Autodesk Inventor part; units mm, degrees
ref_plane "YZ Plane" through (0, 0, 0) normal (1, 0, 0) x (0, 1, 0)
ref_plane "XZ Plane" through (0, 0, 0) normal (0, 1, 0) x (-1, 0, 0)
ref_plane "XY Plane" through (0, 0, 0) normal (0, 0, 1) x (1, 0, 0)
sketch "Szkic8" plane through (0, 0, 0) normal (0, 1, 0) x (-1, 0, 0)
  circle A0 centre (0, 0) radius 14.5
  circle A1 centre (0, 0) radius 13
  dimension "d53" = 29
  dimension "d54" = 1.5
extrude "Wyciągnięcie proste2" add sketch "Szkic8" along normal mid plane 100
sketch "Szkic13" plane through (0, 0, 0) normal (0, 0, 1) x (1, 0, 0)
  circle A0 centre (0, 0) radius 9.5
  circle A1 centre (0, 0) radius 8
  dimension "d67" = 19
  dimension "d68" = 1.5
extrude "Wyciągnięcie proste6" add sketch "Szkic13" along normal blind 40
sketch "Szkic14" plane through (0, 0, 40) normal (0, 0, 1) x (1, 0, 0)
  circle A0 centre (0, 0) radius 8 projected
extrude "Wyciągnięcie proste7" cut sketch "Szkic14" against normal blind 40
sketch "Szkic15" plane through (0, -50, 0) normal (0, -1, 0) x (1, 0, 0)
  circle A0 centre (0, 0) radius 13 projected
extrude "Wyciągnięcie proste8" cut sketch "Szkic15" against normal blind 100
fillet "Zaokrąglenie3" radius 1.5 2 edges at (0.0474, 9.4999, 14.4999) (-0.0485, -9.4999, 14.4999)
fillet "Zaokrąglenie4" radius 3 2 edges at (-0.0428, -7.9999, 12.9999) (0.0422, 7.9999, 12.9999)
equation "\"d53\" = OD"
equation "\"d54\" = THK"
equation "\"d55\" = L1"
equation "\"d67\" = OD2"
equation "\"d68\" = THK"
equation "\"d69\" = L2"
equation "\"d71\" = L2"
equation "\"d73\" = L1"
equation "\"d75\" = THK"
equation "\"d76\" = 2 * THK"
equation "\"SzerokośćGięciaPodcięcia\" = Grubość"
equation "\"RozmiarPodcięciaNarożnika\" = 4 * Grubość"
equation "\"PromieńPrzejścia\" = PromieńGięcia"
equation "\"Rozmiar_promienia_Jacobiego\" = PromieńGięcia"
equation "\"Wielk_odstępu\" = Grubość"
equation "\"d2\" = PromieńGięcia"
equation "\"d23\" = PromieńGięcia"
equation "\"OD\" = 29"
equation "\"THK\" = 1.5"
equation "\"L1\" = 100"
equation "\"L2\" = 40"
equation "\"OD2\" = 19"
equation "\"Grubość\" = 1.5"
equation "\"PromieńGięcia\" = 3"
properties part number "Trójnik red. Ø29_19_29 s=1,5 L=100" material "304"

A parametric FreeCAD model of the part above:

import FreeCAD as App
import Part
import Sketcher


def edges_at(feature, points):
    """Names of the edges that pass closest to the given points."""
    edges = feature.Shape.Edges
    near = lambda p: min(range(len(edges)), key=lambda i: edges[i].distToShape(Part.Vertex(*p))[0])
    return sorted({f"Edge{near(p) + 1}" for p in points})

doc = App.newDocument("Part")
body = doc.addObject("PartDesign::Body", "Body")

sketch1 = body.newObject("Sketcher::SketchObject", "Sketch")
sketch1.AttachmentSupport = (doc.getObject("XZ_Plane"), [""])
sketch1.MapMode = "FlatFace"
sketch1.addGeometry(Part.Circle(App.Vector(0, 0, 0), App.Vector(0, 0, 1), 14), False)
sketch1.addGeometry(Part.Circle(App.Vector(0, 0, 0), App.Vector(0, 0, 1), 13), False)
sketch1.addConstraint(Sketcher.Constraint("Coincident", 0, 3, -1, 1))
sketch1.addConstraint(Sketcher.Constraint("Coincident", 1, 3, -1, 1))
sketch1.addConstraint(Sketcher.Constraint("Diameter", 0, 29.0))
sketch1.addConstraint(Sketcher.Constraint("Diameter", 1, 26.0))
pad1 = body.newObject("PartDesign::Pad", "Pad")
pad1.Profile = sketch1
pad1.Length = 100
pad1.Midplane = True

sketch2 = body.newObject("Sketcher::SketchObject", "Sketch001")
sketch2.AttachmentSupport = (doc.getObject("XY_Plane"), [""])
sketch2.MapMode = "FlatFace"
sketch2.addGeometry(Part.Circle(App.Vector(0, 0, 0), App.Vector(0, 0, 1), 10), False)
sketch2.addGeometry(Part.Circle(App.Vector(0, 0, 0), App.Vector(0, 0, 1), 8), False)
sketch2.addConstraint(Sketcher.Constraint("Coincident", 0, 3, -1, 1))
sketch2.addConstraint(Sketcher.Constraint("Coincident", 1, 3, -1, 1))
sketch2.addConstraint(Sketcher.Constraint("Diameter", 0, 19.0))
sketch2.addConstraint(Sketcher.Constraint("Diameter", 1, 16.0))
pad2 = body.newObject("PartDesign::Pad", "Pad001")
pad2.Profile = sketch2
pad2.Length = 40

sketch3 = body.newObject("Sketcher::SketchObject", "Sketch002")
sketch3.AttachmentSupport = (doc.getObject("XY_Plane"), [""])
sketch3.MapMode = "FlatFace"
sketch3.AttachmentOffset = App.Placement(App.Vector(0, 0, 40), App.Rotation())
sketch3.addGeometry(Part.Circle(App.Vector(0, 0, 0), App.Vector(0, 0, 1), 8), False)
sketch3.addConstraint(Sketcher.Constraint("Coincident", 0, 3, -1, 1))
sketch3.addConstraint(Sketcher.Constraint("Diameter", 0, 16.0))
pocket1 = body.newObject("PartDesign::Pocket", "Pocket")
pocket1.Profile = sketch3
pocket1.Length = 40

sketch4 = body.newObject("Sketcher::SketchObject", "Sketch003")
sketch4.AttachmentSupport = (doc.getObject("XZ_Plane"), [""])
sketch4.MapMode = "FlatFace"
sketch4.AttachmentOffset = App.Placement(App.Vector(0, 0, 50), App.Rotation())
sketch4.addGeometry(Part.Circle(App.Vector(0, 0, 0), App.Vector(0, 0, 1), 13), False)
sketch4.addConstraint(Sketcher.Constraint("Coincident", 0, 3, -1, 1))
sketch4.addConstraint(Sketcher.Constraint("Diameter", 0, 26.0))
pocket2 = body.newObject("PartDesign::Pocket", "Pocket001")
pocket2.Profile = sketch4
pocket2.Length = 100
doc.recompute()

fillet = body.newObject("PartDesign::Fillet", "Fillet")
fillet.Base = (pocket2, edges_at(pocket2, [(0.047, 9.5, 14.5), (-0.049, -9.5, 14.5)]))
fillet.Radius = 1.5
doc.recompute()

fillet2 = body.newObject("PartDesign::Fillet", "Fillet001")
fillet2.Base = (fillet, edges_at(fillet, [(-0.043, -8, 13), (0.042, 8, 13)]))
fillet2.Radius = 3

doc.recompute()
